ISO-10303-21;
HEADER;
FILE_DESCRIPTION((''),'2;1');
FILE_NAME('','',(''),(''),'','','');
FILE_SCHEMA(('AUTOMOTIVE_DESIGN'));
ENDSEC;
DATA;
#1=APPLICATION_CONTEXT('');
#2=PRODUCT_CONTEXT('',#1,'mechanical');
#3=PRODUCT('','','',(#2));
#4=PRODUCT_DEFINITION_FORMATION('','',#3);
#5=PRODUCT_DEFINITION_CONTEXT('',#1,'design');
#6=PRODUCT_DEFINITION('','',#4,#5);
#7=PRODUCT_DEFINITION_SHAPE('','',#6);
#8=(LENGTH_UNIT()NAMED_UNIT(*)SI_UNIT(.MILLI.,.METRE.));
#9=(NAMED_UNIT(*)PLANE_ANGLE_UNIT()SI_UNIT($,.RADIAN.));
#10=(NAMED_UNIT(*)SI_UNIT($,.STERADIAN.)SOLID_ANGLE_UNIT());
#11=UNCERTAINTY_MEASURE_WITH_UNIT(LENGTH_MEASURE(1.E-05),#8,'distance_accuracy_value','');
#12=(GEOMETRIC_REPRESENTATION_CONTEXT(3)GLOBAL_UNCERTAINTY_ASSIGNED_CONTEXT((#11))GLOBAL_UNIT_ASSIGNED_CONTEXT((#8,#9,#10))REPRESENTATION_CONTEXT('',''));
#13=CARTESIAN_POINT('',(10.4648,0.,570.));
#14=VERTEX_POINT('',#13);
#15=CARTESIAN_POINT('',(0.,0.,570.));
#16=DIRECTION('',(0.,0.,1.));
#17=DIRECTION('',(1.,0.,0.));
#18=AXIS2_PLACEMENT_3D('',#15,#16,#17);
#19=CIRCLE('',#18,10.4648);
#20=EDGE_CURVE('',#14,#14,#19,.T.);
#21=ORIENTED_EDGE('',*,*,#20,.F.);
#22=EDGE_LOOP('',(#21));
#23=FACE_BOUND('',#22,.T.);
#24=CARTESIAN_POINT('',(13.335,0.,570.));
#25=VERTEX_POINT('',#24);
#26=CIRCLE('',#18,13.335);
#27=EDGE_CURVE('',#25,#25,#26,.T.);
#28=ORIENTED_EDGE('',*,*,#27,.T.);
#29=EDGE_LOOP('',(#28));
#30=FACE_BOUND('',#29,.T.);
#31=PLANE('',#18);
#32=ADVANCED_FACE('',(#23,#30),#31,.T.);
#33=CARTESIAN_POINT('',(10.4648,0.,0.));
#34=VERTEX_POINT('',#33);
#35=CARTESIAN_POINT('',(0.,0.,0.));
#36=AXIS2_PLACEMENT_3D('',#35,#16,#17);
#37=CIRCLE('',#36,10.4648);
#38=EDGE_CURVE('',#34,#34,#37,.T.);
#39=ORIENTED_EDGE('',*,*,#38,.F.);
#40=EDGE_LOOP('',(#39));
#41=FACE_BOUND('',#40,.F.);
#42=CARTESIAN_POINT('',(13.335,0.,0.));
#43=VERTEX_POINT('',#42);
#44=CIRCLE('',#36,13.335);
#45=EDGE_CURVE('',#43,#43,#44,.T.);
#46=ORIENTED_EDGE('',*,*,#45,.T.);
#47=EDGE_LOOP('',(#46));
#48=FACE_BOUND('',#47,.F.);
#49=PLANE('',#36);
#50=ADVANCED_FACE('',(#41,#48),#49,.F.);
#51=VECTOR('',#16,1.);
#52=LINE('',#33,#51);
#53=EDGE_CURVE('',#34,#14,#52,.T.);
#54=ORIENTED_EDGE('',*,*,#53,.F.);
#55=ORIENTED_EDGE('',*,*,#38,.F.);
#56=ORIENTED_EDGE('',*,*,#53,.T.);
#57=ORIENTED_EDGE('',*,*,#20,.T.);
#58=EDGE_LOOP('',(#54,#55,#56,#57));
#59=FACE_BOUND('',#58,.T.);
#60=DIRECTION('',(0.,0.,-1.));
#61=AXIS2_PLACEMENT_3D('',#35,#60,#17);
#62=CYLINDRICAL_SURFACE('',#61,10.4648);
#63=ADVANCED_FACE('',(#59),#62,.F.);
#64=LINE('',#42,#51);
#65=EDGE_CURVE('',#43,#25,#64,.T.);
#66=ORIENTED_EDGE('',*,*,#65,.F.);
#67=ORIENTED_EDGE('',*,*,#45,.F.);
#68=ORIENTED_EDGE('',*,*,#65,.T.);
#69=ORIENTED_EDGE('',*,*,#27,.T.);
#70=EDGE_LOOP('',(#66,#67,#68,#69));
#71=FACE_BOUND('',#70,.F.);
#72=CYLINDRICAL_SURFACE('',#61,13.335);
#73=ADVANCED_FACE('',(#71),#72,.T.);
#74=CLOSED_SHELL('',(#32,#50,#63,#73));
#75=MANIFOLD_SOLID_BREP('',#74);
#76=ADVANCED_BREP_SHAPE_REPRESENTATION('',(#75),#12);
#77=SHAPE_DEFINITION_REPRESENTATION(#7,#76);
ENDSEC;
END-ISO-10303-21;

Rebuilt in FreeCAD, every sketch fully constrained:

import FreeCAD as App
import Part
import Sketcher
Q = App.Units.Quantity

doc = App.newDocument("Part")
body = doc.addObject("PartDesign::Body", "Body")

# Sketch on XY plane
sketch1 = body.newObject("Sketcher::SketchObject", "Sketch")
sketch1.AttachmentSupport = (doc.getObject("XY_Plane"), [""])
sketch1.MapMode = "FlatFace"
sketch1.addGeometry([
    Part.Circle(App.Vector(0, 0, 0), App.Vector(0, 0, 1), 13.335),
    Part.Circle(App.Vector(0, 0, 0), App.Vector(0, 0, 1), 10.4648),
], False)
sketch1.addConstraint([
    Sketcher.Constraint("Coincident", 0, 3, -1, 1),
    Sketcher.Constraint("Coincident", 1, 3, -1, 1),
    Sketcher.Constraint("Diameter", 0, Q("1.05 in")),
    Sketcher.Constraint("Diameter", 1, Q("0.824 in")),
])
pad1 = body.newObject("PartDesign::Pad", "Pad")
pad1.Profile = sketch1
pad1.Length = 570

doc.recompute()
